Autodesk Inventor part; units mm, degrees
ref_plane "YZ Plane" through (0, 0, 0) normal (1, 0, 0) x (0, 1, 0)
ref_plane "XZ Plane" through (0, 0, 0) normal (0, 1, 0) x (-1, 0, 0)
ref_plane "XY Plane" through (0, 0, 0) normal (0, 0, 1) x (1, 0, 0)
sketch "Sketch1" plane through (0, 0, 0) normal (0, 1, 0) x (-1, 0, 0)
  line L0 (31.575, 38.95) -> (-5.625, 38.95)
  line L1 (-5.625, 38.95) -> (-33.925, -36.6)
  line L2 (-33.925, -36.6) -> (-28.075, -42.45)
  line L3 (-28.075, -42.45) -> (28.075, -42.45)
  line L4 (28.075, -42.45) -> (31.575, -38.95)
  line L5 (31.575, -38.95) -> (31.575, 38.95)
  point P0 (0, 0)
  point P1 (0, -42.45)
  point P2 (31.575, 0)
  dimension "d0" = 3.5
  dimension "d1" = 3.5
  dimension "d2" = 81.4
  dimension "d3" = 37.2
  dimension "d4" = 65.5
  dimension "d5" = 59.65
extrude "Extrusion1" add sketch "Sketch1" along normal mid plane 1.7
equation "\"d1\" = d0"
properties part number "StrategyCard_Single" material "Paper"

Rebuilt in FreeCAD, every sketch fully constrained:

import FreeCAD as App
import Part
import Sketcher
Q = App.Units.Quantity


def add_polygon(sketch, points):
    """Adds a closed chain of lines whose ends are joined by coincident constraints."""
    first, n = sketch.GeometryCount, len(points)
    for a, b in zip(points, points[1:] + points[:1]):
        sketch.addGeometry(Part.LineSegment(App.Vector(*a, 0), App.Vector(*b, 0)), False)
    for i in range(n):
        sketch.addConstraint(Sketcher.Constraint("Coincident", first + i, 2, first + (i + 1) % n, 1))

doc = App.newDocument("Part")
params = doc.addObject("Spreadsheet::Sheet", "Params")
for row, (alias, value) in enumerate([
    ("sketch1_width", "37.2 mm"),
    ("pad1_length", "1.7 mm"),
], start=1):
    params.set(f"A{row}", alias)
    params.set(f"B{row}", "=" + value)
    params.setAlias(f"B{row}", alias)

body = doc.addObject("PartDesign::Body", "Body")

# Sketch on XZ plane
sketch1 = body.newObject("Sketcher::SketchObject", "Sketch")
sketch1.AttachmentSupport = (doc.getObject("XZ_Plane"), [""])
sketch1.MapMode = "FlatFace"
add_polygon(sketch1, [(-31.575, -38.95), (-31.575, 38.95), (5.625, 38.95), (33.925, -36.6), (28.075, -42.45), (-28.075, -42.45)])  # lines 0-5
sketch1.addConstraint([
    Sketcher.Constraint("Vertical", 0),
    Sketcher.Constraint("Horizontal", 1),
    Sketcher.Constraint("Horizontal", 4),
    Sketcher.Constraint("Perpendicular", 3, 5),
    Sketcher.Constraint("DistanceX", 1, 1, 1, 2, Q("37.2 mm")),
    Sketcher.Constraint("DistanceX", 0, 2, 2, 2, Q("65.5 mm")),
    Sketcher.Constraint("DistanceY", 3, 2, 1, 2, Q("81.4 mm")),
    Sketcher.Constraint("DistanceX", 0, 2, 4, 2, Q("3.5 mm")),
    Sketcher.Constraint("DistanceY", 4, 2, 5, 2, Q("3.5 mm")),
    Sketcher.Constraint("DistanceX", 0, 2, 3, 2, Q("59.65 mm")),
    Sketcher.Constraint("DistanceY", 2, 2, -1, 1, Q("36.6 mm")),
    Sketcher.Constraint("DistanceX", 0, 2, -1, 1, Q("31.575 mm")),
])
sketch1.setExpression("Constraints[10]", "Params.sketch1_width")
pad1 = body.newObject("PartDesign::Pad", "Pad")
pad1.Profile = sketch1
pad1.setExpression("Length", "Params.pad1_length")
pad1.Midplane = True

doc.recompute()
